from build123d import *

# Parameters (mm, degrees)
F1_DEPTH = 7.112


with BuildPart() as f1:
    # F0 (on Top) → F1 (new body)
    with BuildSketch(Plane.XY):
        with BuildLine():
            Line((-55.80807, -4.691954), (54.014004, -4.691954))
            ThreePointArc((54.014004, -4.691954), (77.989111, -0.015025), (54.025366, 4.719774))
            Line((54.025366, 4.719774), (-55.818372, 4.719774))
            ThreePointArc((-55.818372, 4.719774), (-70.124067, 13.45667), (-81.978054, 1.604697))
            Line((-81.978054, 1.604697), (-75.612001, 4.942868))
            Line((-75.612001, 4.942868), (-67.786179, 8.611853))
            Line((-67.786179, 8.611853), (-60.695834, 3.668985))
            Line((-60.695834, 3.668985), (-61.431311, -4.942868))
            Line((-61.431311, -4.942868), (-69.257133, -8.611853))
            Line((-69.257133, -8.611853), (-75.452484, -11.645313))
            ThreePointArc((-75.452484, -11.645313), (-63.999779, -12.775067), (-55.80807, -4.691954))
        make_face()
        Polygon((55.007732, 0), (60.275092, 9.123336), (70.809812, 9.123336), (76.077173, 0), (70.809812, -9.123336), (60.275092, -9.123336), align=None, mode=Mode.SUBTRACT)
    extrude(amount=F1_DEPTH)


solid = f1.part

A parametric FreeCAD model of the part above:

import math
import FreeCAD as App
import Part
import Sketcher
from FreeCAD import Vector
Q = App.Units.Quantity

doc = App.newDocument("Part")
body = doc.addObject("PartDesign::Body", "Body")

sketch1 = body.newObject("Sketcher::SketchObject", "Sketch")
sketch1.AttachmentSupport = (doc.getObject("XY_Plane"), [""])
sketch1.MapMode = "FlatFace"
sketch1.addGeometry([
    Part.LineSegment(Vector(-56, -5, 0), Vector(54, -5, 0)),
    Part.ArcOfCircle(Part.Circle(Vector(66, 0, 0), Vector(0, 0, 1), 12), math.radians(-158), math.radians(158)),
    Part.LineSegment(Vector(54, 5, 0), Vector(-56, 5, 0)),
    Part.ArcOfCircle(Part.Circle(Vector(-69, 0, 0), Vector(0, 0, 1), 14), math.radians(20), math.radians(173)),
    Part.LineSegment(Vector(-82, 2, 0), Vector(-76, 5, 0)),
    Part.LineSegment(Vector(-76, 5, 0), Vector(-68, 9, 0)),
    Part.LineSegment(Vector(-68, 9, 0), Vector(-61, 4, 0)),
    Part.LineSegment(Vector(-61, 4, 0), Vector(-61, -5, 0)),
    Part.LineSegment(Vector(-61, -5, 0), Vector(-69, -9, 0)),
    Part.LineSegment(Vector(-69, -9, 0), Vector(-75, -12, 0)),
    Part.ArcOfCircle(Part.Circle(Vector(-69, 0, 0), Vector(0, 0, 1), 14), math.radians(-121), math.radians(-20)),
    Part.LineSegment(Vector(60, -9, 0), Vector(55, 0, 0)),
    Part.LineSegment(Vector(55, 0, 0), Vector(60, 9, 0)),
    Part.LineSegment(Vector(60, 9, 0), Vector(71, 9, 0)),
    Part.LineSegment(Vector(71, 9, 0), Vector(76, 0, 0)),
    Part.LineSegment(Vector(76, 0, 0), Vector(71, -9, 0)),
    Part.LineSegment(Vector(71, -9, 0), Vector(60, -9, 0)),
], False)
sketch1.addConstraint([
    Sketcher.Constraint("Coincident", 0, 2, 1, 1),
    Sketcher.Constraint("Coincident", 1, 2, 2, 1),
    Sketcher.Constraint("Coincident", 2, 2, 3, 1),
    Sketcher.Constraint("Coincident", 3, 2, 4, 1),
    Sketcher.Constraint("Coincident", 4, 2, 5, 1),
    Sketcher.Constraint("Coincident", 5, 2, 6, 1),
    Sketcher.Constraint("Coincident", 6, 2, 7, 1),
    Sketcher.Constraint("Coincident", 7, 2, 8, 1),
    Sketcher.Constraint("Coincident", 8, 2, 9, 1),
    Sketcher.Constraint("Coincident", 9, 2, 10, 1),
    Sketcher.Constraint("Coincident", 10, 2, 0, 1),
    Sketcher.Constraint("Coincident", 11, 2, 12, 1),
    Sketcher.Constraint("Coincident", 12, 2, 13, 1),
    Sketcher.Constraint("Coincident", 13, 2, 14, 1),
    Sketcher.Constraint("Coincident", 14, 2, 15, 1),
    Sketcher.Constraint("Coincident", 15, 2, 16, 1),
    Sketcher.Constraint("Coincident", 16, 2, 11, 1),
    Sketcher.Constraint("Horizontal", 0),
    Sketcher.Constraint("Horizontal", 2),
    Sketcher.Constraint("Horizontal", 13),
    Sketcher.Constraint("Horizontal", 16),
    Sketcher.Constraint("Coincident", 10, 3, 3, 3),
    Sketcher.Constraint("Equal", 3, 10),
    Sketcher.Constraint("Symmetric", 13, 2, 15, 2, -1),
    Sketcher.Constraint("PointOnObject", 1, 3, -1),
    Sketcher.Constraint("PointOnObject", 3, 3, -1),
    Sketcher.Constraint("PointOnObject", 11, 2, -1),
    Sketcher.Constraint("PointOnObject", 14, 2, -1),
    Sketcher.Constraint("Parallel", 5, 8),
    Sketcher.Constraint("Parallel", 11, 14),
    Sketcher.Constraint("Parallel", 12, 15),
    Sketcher.Constraint("Equal", 5, 6),
    Sketcher.Constraint("Equal", 6, 7),
    Sketcher.Constraint("Equal", 7, 8),
    Sketcher.Constraint("Angle", 11, Q("119.999998 deg")),
    Sketcher.Constraint("Radius", 3, 13.551741),
    Sketcher.Constraint("Radius", 1, 12.446668),
    Sketcher.Constraint("Distance", 6, 8.643202),
    Sketcher.Constraint("DistanceX", 2, 2, 2, 1, 109.843738),
    Sketcher.Constraint("DistanceX", 13, 1, 13, 2, 10.53472),
    Sketcher.Constraint("DistanceX", 4, 2, -1, 1, 75.612001),
    Sketcher.Constraint("DistanceX", 3, 2, 10, 3, 13.456399),
    Sketcher.Constraint("DistanceX", 8, 2, 6, 2, 8.561299),
    Sketcher.Constraint("DistanceX", 2, 2, 10, 2, 0.010302),
    Sketcher.Constraint("Distance", 11, 10.534721),
    Sketcher.Constraint("DistanceX", 2, 2, -1, 1, 55.818372),
    Sketcher.Constraint("DistanceX", 5, 2, -1, 1, 67.786179),
    Sketcher.Constraint("DistanceX", 7, 2, -1, 1, 61.431311),
    Sketcher.Constraint("DistanceX", -1, 1, 11, 2, 55.007732),
    Sketcher.Constraint("DistanceX", 3, 3, 1, 3, 134.064108),
    Sketcher.Constraint("DistanceY", 3, 2, 4, 2, 3.338171),
    Sketcher.Constraint("DistanceX", 9, 2, 8, 2, 6.195351),
])
pad1 = body.newObject("PartDesign::Pad", "Pad")
pad1.Profile = sketch1
pad1.Length = Q("0.28 in")

doc.recompute()
